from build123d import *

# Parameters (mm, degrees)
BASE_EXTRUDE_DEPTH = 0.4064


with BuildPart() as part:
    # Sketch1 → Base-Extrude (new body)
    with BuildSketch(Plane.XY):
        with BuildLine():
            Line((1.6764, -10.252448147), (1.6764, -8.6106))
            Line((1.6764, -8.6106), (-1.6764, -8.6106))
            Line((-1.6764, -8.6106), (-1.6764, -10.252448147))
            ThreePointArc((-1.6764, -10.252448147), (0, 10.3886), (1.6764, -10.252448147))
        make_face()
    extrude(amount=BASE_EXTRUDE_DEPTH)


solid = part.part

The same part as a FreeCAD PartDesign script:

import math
import FreeCAD as App
import Part
import Sketcher

V = App.Vector
Q = App.Units.Quantity

doc = App.newDocument("Part")
params = doc.addObject("Spreadsheet::Sheet", "Params")
for row, (alias, value) in enumerate([
    ("sketch1_radius", "0.409 in"),
    ("sketch1_width", "0.132 in"),
    ("pad1_length", "0.016 in"),
], start=1):
    params.set(f"A{row}", alias)
    params.set(f"B{row}", "=" + value)
    params.setAlias(f"B{row}", alias)

body = doc.addObject("PartDesign::Body", "Body")

sketch1 = body.newObject("Sketcher::SketchObject", "Sketch")
sketch1.AttachmentSupport = (doc.getObject("XY_Plane"), [""])
sketch1.MapMode = "FlatFace"
sketch1.addGeometry([
    Part.LineSegment(V(1.6764, -8.6106, 0), V(1.6764, -10.252448, 0)),
    Part.ArcOfCircle(Part.Circle(V(0, 0, 0), V(0, 0, 1), 10.3886), math.radians(-80.713622), math.radians(260.713622)),
    Part.LineSegment(V(-1.6764, -10.252448, 0), V(-1.6764, -8.6106, 0)),
    Part.LineSegment(V(-1.6764, -8.6106, 0), V(1.6764, -8.6106, 0)),
], False)
sketch1.addConstraint([
    Sketcher.Constraint("Coincident", 0, 2, 1, 1),
    Sketcher.Constraint("Coincident", 1, 2, 2, 1),
    Sketcher.Constraint("Coincident", 2, 2, 3, 1),
    Sketcher.Constraint("Coincident", 3, 2, 0, 1),
    Sketcher.Constraint("Vertical", 0),
    Sketcher.Constraint("Vertical", 2),
    Sketcher.Constraint("Horizontal", 3),
    Sketcher.Constraint("Coincident", 1, 3, -1, 1),
    Sketcher.Constraint("Horizontal", 0, 2, 1, 2),
    Sketcher.Constraint("Radius", 1, Q("0.409 in")),
    Sketcher.Constraint("DistanceX", 3, 1, 3, 2, Q("0.132 in")),
    Sketcher.Constraint("DistanceY", 2, 2, -1, 1, Q("0.339 in")),
])
sketch1.setExpression("Constraints[9]", "Params.sketch1_radius")
sketch1.setExpression("Constraints[10]", "Params.sketch1_width")
pad1 = body.newObject("PartDesign::Pad", "Pad")
pad1.Profile = sketch1
pad1.setExpression("Length", "Params.pad1_length")

doc.recompute()
